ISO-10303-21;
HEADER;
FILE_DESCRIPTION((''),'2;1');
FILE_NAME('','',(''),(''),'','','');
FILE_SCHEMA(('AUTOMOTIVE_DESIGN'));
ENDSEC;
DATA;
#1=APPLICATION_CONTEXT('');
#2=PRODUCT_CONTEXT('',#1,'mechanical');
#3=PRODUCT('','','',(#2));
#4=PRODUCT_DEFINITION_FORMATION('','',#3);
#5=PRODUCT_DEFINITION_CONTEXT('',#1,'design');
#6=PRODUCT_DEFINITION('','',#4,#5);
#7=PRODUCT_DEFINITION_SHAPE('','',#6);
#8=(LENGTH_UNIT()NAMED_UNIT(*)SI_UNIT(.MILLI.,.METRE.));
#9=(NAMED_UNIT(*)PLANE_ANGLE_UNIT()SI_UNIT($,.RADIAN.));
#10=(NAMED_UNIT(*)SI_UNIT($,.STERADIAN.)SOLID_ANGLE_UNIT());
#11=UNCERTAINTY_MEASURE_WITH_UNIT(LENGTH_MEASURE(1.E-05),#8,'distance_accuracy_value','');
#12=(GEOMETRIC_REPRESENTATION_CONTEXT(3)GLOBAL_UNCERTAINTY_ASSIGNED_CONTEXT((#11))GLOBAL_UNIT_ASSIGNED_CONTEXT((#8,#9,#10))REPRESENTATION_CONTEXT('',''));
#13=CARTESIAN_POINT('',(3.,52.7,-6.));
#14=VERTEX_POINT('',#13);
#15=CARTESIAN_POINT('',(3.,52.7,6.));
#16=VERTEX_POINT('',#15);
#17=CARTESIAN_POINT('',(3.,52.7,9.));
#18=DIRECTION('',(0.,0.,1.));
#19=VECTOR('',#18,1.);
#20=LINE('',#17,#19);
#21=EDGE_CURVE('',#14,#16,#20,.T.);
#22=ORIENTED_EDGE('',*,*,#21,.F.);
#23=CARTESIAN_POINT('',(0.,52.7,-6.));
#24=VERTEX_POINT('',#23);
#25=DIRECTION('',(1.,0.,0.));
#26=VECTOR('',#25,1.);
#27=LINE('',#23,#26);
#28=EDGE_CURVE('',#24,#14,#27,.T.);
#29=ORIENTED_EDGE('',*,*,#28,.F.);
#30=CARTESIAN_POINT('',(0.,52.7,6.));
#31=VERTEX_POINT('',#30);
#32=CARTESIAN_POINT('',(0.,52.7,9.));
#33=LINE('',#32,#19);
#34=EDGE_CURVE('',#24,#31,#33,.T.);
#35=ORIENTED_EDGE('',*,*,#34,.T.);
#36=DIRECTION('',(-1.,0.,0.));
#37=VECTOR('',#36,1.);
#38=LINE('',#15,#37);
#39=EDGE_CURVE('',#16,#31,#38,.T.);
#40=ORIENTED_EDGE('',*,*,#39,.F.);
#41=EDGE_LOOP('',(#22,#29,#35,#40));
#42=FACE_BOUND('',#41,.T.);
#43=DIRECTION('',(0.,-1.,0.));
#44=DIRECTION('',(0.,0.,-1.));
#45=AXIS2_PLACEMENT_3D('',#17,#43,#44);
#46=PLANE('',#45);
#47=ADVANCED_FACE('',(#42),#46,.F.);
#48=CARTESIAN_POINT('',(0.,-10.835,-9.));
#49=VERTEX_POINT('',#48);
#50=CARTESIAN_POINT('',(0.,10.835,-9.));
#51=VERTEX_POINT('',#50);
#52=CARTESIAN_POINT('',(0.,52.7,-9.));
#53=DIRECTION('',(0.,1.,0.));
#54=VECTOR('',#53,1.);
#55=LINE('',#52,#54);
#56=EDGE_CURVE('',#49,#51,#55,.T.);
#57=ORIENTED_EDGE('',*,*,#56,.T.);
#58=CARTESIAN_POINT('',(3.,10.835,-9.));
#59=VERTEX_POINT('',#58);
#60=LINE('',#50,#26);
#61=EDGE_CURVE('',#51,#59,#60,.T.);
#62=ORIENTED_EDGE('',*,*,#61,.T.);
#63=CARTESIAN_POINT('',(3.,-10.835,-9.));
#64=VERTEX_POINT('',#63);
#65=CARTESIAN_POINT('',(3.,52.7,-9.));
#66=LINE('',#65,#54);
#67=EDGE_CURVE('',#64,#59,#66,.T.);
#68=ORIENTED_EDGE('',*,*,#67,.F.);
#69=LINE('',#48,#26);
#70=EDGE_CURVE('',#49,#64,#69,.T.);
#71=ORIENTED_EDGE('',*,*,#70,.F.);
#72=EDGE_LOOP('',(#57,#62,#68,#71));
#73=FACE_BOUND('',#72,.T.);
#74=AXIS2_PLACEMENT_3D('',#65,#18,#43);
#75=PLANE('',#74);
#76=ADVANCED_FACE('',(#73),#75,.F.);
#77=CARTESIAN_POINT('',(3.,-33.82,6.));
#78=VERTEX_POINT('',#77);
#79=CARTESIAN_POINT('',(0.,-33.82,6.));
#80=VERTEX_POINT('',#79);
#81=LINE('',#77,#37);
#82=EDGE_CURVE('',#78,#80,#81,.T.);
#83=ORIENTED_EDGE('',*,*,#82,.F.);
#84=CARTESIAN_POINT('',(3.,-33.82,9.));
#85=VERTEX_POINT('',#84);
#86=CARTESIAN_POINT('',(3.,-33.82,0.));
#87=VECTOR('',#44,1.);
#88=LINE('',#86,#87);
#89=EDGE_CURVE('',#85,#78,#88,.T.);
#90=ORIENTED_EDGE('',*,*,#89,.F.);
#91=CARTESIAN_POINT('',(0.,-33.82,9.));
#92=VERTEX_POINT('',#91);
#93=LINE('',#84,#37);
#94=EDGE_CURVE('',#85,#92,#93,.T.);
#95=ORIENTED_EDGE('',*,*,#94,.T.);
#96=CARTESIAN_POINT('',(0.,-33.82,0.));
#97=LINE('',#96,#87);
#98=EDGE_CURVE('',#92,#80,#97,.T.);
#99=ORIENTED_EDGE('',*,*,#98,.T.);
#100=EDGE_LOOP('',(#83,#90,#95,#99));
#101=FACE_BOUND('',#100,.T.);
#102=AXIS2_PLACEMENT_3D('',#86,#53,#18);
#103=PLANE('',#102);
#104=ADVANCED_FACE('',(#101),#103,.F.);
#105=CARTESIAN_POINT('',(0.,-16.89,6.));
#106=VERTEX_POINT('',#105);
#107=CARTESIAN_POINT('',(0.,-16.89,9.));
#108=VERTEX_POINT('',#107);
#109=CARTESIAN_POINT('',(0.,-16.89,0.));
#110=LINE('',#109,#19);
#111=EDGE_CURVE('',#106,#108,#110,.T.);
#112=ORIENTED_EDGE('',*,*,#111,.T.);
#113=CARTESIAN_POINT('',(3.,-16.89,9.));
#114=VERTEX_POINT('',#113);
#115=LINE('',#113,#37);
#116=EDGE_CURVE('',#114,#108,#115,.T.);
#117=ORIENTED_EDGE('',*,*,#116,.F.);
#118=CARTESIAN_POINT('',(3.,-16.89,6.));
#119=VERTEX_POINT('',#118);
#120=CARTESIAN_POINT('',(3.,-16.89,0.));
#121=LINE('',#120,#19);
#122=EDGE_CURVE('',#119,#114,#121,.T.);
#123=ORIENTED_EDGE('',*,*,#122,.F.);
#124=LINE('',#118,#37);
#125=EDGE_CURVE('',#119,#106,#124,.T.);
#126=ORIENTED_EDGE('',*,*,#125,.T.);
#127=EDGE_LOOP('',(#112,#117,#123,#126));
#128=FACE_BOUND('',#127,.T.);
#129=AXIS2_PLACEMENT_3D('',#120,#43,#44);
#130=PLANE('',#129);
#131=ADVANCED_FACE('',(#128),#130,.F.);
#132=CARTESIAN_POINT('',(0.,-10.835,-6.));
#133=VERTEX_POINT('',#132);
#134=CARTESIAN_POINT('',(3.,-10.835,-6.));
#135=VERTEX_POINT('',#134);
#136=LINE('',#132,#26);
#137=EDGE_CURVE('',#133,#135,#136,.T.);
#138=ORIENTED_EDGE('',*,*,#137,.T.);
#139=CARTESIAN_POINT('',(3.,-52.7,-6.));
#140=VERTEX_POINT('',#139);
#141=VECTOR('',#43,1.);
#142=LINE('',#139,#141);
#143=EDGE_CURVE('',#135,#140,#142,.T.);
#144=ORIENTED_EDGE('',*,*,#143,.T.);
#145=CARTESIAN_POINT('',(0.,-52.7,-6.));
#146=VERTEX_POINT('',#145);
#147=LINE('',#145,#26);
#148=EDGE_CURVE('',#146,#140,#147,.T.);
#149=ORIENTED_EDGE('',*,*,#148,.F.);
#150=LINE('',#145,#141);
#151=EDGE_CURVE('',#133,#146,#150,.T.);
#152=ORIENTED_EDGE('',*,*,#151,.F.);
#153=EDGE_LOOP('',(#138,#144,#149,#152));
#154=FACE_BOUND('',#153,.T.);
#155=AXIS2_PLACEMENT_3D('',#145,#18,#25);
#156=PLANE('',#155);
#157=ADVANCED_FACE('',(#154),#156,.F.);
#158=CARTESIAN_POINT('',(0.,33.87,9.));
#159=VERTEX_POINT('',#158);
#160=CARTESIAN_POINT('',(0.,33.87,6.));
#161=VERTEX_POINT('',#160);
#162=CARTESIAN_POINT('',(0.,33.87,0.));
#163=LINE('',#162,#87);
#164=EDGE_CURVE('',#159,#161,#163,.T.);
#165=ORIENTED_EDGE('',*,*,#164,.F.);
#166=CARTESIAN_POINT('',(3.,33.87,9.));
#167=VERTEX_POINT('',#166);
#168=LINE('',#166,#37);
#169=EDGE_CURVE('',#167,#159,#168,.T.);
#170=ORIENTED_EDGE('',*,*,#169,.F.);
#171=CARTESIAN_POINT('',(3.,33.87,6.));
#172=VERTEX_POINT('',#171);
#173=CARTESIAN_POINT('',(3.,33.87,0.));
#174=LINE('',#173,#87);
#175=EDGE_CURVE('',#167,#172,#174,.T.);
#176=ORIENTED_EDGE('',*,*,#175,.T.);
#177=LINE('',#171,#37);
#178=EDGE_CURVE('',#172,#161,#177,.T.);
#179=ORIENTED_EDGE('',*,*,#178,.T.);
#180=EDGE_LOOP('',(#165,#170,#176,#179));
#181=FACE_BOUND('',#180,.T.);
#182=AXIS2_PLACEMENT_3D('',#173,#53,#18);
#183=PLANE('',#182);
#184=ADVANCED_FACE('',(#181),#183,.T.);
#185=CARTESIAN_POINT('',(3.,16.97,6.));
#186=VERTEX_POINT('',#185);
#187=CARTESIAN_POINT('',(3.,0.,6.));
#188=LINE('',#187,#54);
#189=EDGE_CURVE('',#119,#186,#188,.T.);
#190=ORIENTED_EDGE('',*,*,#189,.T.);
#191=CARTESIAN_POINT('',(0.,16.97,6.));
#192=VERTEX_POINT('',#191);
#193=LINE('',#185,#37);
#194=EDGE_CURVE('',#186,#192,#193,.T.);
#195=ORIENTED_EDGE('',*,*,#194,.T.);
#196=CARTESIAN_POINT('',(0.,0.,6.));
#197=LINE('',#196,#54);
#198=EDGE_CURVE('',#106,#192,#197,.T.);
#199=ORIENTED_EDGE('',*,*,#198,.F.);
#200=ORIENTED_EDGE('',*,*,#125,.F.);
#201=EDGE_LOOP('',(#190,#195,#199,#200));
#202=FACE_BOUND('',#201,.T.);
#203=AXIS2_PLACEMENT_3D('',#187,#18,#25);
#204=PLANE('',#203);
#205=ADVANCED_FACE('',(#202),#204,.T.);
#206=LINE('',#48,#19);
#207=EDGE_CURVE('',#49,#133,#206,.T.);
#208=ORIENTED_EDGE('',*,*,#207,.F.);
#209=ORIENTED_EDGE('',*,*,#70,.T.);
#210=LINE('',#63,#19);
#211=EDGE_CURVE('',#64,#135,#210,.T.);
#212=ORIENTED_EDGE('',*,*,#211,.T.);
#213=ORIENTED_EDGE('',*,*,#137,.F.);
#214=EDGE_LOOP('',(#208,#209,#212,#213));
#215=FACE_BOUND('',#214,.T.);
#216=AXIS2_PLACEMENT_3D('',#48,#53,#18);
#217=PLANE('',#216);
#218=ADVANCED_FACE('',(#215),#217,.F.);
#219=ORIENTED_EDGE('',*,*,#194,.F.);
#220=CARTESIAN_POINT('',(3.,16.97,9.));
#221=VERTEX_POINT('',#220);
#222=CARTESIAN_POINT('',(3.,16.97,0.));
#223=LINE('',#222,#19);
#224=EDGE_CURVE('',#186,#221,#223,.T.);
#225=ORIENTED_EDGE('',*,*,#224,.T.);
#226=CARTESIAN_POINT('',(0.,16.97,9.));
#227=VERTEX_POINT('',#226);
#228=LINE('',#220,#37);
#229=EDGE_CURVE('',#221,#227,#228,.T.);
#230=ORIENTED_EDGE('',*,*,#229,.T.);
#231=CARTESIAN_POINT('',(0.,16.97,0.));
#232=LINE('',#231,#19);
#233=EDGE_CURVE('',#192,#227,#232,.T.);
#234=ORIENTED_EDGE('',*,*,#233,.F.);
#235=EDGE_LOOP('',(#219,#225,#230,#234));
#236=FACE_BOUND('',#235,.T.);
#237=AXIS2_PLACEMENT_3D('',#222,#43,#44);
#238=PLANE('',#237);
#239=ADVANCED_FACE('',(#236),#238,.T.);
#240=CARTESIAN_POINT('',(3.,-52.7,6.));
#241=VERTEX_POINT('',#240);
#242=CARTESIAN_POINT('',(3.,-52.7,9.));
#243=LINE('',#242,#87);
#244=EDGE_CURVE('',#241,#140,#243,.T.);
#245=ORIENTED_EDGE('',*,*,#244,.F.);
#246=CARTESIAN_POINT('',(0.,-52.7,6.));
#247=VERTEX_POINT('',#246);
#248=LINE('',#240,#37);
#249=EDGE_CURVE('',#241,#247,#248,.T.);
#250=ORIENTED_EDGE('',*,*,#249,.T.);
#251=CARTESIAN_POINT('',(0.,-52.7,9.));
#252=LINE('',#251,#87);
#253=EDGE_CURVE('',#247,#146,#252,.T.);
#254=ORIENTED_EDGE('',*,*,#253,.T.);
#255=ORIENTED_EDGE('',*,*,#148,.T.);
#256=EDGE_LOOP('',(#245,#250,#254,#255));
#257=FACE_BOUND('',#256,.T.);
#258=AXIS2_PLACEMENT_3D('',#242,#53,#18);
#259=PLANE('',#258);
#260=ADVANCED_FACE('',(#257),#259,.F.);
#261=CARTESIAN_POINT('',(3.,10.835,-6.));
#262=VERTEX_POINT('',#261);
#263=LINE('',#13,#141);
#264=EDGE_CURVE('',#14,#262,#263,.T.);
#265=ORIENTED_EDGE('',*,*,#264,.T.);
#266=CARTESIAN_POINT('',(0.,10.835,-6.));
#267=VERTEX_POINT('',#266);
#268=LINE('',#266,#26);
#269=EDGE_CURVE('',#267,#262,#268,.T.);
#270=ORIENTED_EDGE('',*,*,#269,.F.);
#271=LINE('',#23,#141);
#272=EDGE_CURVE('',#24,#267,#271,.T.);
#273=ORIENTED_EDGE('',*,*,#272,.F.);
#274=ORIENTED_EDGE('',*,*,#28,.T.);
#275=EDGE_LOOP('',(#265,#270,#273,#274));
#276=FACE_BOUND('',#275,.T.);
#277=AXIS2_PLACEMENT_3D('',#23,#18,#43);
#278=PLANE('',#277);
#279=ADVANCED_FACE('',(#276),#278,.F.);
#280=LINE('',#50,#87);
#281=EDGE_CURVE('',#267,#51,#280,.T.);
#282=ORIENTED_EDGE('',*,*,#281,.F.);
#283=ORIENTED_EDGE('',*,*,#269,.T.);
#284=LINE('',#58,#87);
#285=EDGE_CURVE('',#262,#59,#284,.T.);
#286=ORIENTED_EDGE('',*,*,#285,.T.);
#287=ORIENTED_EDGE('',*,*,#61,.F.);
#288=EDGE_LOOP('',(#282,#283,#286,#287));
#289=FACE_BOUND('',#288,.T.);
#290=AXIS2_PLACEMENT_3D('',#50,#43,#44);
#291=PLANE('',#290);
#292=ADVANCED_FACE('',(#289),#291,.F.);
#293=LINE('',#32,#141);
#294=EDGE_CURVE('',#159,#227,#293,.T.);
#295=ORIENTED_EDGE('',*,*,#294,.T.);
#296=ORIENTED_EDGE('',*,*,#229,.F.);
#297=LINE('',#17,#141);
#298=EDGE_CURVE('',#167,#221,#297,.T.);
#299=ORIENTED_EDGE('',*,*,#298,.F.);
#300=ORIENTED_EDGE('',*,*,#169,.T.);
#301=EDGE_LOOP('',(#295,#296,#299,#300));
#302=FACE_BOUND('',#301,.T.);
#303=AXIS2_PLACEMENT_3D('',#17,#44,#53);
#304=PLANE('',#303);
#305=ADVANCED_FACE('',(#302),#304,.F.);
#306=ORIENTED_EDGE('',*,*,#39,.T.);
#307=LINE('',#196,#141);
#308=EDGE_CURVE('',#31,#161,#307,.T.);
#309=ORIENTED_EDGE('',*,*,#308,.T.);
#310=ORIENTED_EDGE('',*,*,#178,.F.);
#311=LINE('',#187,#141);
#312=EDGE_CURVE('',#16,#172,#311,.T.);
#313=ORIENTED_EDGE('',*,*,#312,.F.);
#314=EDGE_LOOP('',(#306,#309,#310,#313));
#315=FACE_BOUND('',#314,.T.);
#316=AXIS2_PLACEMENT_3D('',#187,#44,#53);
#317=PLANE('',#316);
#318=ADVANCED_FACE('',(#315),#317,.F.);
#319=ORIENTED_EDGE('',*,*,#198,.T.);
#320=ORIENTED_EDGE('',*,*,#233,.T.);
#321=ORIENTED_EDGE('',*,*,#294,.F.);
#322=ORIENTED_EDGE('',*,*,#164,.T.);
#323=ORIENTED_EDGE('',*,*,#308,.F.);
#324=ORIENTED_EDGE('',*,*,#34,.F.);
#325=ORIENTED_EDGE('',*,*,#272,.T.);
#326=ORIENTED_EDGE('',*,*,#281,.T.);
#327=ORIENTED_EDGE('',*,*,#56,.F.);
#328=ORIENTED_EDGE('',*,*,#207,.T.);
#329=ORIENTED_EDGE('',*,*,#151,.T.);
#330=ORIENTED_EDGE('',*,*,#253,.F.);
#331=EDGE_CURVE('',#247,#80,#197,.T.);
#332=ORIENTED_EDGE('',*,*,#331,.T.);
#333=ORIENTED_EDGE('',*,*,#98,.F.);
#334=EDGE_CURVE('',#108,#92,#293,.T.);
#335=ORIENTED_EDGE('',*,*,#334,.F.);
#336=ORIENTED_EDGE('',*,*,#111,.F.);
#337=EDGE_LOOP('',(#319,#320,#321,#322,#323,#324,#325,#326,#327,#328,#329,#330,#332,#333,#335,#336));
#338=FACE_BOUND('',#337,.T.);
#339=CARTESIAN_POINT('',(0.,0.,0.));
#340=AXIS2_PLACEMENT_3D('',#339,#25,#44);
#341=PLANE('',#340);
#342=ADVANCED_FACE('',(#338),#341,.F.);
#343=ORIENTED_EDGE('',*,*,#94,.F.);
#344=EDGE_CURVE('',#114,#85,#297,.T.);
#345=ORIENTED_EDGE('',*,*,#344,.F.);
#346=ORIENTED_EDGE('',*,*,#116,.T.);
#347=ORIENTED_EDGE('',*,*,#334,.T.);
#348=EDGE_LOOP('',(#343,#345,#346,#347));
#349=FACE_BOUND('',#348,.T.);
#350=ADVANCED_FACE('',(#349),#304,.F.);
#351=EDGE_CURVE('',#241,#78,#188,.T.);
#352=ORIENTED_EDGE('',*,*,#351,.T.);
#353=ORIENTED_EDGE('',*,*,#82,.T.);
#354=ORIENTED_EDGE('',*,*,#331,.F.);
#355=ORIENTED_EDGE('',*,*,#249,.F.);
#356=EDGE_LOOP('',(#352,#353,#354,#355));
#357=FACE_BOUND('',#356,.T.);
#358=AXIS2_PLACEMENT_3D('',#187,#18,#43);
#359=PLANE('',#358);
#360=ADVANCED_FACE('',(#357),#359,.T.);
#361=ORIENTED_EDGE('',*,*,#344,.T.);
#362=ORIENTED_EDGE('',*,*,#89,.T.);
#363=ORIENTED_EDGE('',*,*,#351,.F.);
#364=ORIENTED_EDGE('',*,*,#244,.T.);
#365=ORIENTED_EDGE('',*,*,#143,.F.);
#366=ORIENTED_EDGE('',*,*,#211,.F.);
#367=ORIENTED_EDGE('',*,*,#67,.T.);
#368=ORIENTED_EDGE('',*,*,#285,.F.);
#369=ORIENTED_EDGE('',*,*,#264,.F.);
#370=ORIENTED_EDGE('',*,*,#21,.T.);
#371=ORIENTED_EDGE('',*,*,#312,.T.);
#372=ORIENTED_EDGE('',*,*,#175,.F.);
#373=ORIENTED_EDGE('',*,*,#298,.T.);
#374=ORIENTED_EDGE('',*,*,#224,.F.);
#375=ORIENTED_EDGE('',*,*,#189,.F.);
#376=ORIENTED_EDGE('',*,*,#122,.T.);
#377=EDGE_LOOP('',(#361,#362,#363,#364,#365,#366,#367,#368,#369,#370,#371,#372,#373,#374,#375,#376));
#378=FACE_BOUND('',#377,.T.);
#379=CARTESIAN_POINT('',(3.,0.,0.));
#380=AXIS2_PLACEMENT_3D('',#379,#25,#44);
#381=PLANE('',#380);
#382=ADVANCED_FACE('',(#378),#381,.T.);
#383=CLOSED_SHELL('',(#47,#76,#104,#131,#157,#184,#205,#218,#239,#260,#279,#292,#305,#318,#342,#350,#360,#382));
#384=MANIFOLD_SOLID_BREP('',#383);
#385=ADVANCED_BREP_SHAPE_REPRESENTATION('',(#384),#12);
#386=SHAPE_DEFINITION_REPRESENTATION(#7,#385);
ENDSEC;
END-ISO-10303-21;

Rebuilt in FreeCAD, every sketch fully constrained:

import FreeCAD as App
import Part
import Sketcher

V = App.Vector


def add_polygon(sketch, points):
    """Adds a closed chain of lines whose ends are joined by coincident constraints."""
    first, n = sketch.GeometryCount, len(points)
    for a, b in zip(points, points[1:] + points[:1]):
        sketch.addGeometry(Part.LineSegment(App.Vector(*a, 0), App.Vector(*b, 0)), False)
    for i in range(n):
        sketch.addConstraint(Sketcher.Constraint("Coincident", first + i, 2, first + (i + 1) % n, 1))

doc = App.newDocument("Part")
body = doc.addObject("PartDesign::Body", "Body")

# Sketch on YZ plane
sketch1 = doc.addObject("Sketcher::SketchObject", "Sketch")
body.addObject(sketch1)
sketch1.AttachmentSupport = (doc.YZ_Plane, [""])
sketch1.MapMode = "FlatFace"
add_polygon(sketch1, [(53, 9), (-53, 9), (-53, -9), (53, -9)])  # lines 0-3
sketch1.addConstraint([
    Sketcher.Constraint("Horizontal", 0),
    Sketcher.Constraint("Vertical", 1),
    Sketcher.Constraint("Horizontal", 2),
    Sketcher.Constraint("Vertical", 3),
    Sketcher.Constraint("Symmetric", 0, 2, 2, 2, -1, 1),
    Sketcher.Constraint("DistanceY", 1, 2, 1, 1, 18.0),
    Sketcher.Constraint("DistanceX", 0, 2, 0, 1, 105.4),
])
pad1 = doc.addObject("PartDesign::Pad", "Pad")
body.addObject(pad1)
pad1.Profile = sketch1
pad1.Length = 3

# Sketch on YZ plane
sketch2 = doc.addObject("Sketcher::SketchObject", "Sketch001")
body.addObject(sketch2)
sketch2.AttachmentSupport = (doc.YZ_Plane, [""])
sketch2.MapMode = "FlatFace"
sketch2.AttachmentOffset = App.Placement(V(0, 0, 3), App.Rotation())
add_polygon(sketch2, [(-10.8, -6), (-52.7, -6), (-52.7, -9), (-10.8, -9)])  # lines 0-3
add_polygon(sketch2, [(52.7, -6), (10.8, -6), (10.8, -9), (52.7, -9)])  # lines 4-7
sketch2.addConstraint([
    Sketcher.Constraint("Horizontal", 0),
    Sketcher.Constraint("Vertical", 1),
    Sketcher.Constraint("Horizontal", 2),
    Sketcher.Constraint("Vertical", 3),
    Sketcher.Constraint("Horizontal", 4),
    Sketcher.Constraint("Vertical", 5),
    Sketcher.Constraint("Horizontal", 6),
    Sketcher.Constraint("Vertical", 7),
    Sketcher.Constraint("Symmetric", 3, 2, 4, 2, -2),
    Sketcher.Constraint("Symmetric", 1, 2, 6, 2, -2),
    Sketcher.Constraint("DistanceY", 1, 2, 1, 1, 3.0),
    Sketcher.Constraint("DistanceY", 0, 2, -1, 1, 6.0),
    Sketcher.Constraint("DistanceX", 0, 2, -1, 1, 52.7),
    Sketcher.Constraint("DistanceX", 0, 2, 0, 1, 41.865),
])
pocket1 = doc.addObject("PartDesign::Pocket", "Pocket")
body.addObject(pocket1)
pocket1.Profile = sketch2
pocket1.Length = 3

# Sketch on YZ plane
sketch3 = doc.addObject("Sketcher::SketchObject", "Sketch002")
body.addObject(sketch3)
sketch3.AttachmentSupport = (doc.YZ_Plane, [""])
sketch3.MapMode = "FlatFace"
add_polygon(sketch3, [(-33.8, 6), (-52.7, 6), (-52.7, 9), (-33.8, 9)])  # lines 0-3
add_polygon(sketch3, [(17, 6), (-16.9, 6), (-16.9, 9), (17, 9)])  # lines 4-7
add_polygon(sketch3, [(52.7, 6), (33.9, 6), (33.9, 9), (52.7, 9)])  # lines 8-11
sketch3.addConstraint([
    Sketcher.Constraint("Horizontal", 0),
    Sketcher.Constraint("Vertical", 1),
    Sketcher.Constraint("Horizontal", 2),
    Sketcher.Constraint("Vertical", 3),
    Sketcher.Constraint("Horizontal", 4),
    Sketcher.Constraint("Vertical", 5),
    Sketcher.Constraint("Horizontal", 6),
    Sketcher.Constraint("Vertical", 7),
    Sketcher.Constraint("Horizontal", 8),
    Sketcher.Constraint("Vertical", 9),
    Sketcher.Constraint("Horizontal", 10),
    Sketcher.Constraint("Vertical", 11),
    Sketcher.Constraint("Symmetric", 1, 2, 10, 2, -2),
    Sketcher.Constraint("Horizontal", 3, 2, 4, 2),
    Sketcher.Constraint("Horizontal", 2, 2, 5, 2),
    Sketcher.Constraint("Horizontal", 7, 2, 8, 2),
    Sketcher.Constraint("DistanceY", 1, 1, 1, 2, 3.0),
    Sketcher.Constraint("DistanceY", -1, 1, 0, 2, 6.0),
    Sketcher.Constraint("DistanceX", 0, 2, 0, 1, 18.88),
    Sketcher.Constraint("DistanceX", 4, 2, 4, 1, 33.86),
    Sketcher.Constraint("DistanceX", 8, 2, 8, 1, 18.83),
    Sketcher.Constraint("DistanceX", 0, 2, -1, 1, 52.7),
    Sketcher.Constraint("DistanceX", 7, 2, 8, 2, 16.9),
])
pocket2 = doc.addObject("PartDesign::Pocket", "Pocket001")
body.addObject(pocket2)
pocket2.Profile = sketch3
pocket2.Length = 3
pocket2.Reversed = True

doc.recompute()
